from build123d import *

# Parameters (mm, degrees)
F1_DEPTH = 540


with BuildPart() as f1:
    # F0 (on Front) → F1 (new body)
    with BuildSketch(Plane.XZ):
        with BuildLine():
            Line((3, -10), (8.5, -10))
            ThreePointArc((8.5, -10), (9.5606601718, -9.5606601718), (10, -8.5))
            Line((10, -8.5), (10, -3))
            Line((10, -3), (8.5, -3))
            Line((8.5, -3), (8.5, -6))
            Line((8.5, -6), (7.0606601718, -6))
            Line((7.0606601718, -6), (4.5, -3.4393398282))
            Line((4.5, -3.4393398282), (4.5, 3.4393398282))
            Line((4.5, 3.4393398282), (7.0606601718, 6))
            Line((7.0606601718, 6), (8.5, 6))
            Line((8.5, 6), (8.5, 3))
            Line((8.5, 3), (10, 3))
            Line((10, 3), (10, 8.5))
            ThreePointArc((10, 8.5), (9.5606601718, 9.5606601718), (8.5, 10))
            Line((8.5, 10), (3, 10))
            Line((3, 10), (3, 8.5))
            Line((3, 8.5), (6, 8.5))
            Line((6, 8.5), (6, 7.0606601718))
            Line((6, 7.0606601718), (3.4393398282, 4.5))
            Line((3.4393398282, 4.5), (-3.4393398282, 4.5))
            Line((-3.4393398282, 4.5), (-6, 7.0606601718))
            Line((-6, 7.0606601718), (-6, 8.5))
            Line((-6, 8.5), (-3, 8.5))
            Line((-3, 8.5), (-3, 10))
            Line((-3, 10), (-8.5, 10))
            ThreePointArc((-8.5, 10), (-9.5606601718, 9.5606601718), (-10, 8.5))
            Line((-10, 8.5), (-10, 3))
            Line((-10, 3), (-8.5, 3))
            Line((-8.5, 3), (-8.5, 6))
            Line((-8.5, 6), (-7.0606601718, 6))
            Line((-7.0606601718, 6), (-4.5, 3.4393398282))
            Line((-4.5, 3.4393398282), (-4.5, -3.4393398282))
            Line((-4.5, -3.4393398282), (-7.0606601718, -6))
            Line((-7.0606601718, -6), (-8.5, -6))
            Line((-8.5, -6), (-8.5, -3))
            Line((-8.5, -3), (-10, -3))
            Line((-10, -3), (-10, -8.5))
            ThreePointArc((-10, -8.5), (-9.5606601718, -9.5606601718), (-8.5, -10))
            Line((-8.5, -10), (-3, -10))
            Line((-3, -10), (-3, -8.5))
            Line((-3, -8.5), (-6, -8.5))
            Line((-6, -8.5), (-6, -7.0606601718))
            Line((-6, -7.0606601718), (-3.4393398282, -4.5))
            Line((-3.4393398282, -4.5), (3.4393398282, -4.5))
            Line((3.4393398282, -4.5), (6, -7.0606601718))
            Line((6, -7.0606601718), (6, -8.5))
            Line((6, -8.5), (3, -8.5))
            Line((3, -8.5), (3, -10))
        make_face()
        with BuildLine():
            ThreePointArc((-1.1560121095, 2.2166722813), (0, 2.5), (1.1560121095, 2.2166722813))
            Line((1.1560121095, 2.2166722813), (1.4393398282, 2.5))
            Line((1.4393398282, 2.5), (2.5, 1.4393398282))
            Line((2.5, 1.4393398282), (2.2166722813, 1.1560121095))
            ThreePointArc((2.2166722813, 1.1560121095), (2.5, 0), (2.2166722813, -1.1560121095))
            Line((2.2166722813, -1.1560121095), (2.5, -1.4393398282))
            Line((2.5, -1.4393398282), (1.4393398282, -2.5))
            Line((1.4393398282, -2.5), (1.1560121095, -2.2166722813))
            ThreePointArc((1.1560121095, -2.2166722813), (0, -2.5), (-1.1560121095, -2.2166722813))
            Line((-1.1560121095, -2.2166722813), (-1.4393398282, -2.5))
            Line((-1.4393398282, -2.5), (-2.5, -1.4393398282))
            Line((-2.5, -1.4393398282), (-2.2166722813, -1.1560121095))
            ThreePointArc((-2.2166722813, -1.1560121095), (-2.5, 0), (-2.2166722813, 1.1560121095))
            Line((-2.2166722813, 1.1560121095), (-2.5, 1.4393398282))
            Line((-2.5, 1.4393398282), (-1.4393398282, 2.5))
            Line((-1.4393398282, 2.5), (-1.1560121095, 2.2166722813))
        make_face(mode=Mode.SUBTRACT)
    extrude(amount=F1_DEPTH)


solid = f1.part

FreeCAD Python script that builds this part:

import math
import FreeCAD as App
import Part
import Sketcher

V = App.Vector

doc = App.newDocument("Part")
body = doc.addObject("PartDesign::Body", "Body")

sketch1 = doc.addObject("Sketcher::SketchObject", "Sketch")
body.addObject(sketch1)
sketch1.AttachmentSupport = (doc.XZ_Plane, [""])
sketch1.MapMode = "FlatFace"
sketch1.addGeometry(Part.LineSegment(V(3, -10, 0), V(8.5, -10, 0)), False)
sketch1.addGeometry(Part.ArcOfCircle(Part.Circle(V(8.5, -8.5, 0), V(0, 0, 1), 1.5), math.radians(-90), math.radians(0)), False)
sketch1.addGeometry(Part.LineSegment(V(10, -8.5, 0), V(10, -3, 0)), False)
sketch1.addGeometry(Part.LineSegment(V(10, -3, 0), V(8.5, -3, 0)), False)
sketch1.addGeometry(Part.LineSegment(V(8.5, -3, 0), V(8.5, -6, 0)), False)
sketch1.addGeometry(Part.LineSegment(V(8.5, -6, 0), V(7.06, -6, 0)), False)
sketch1.addGeometry(Part.LineSegment(V(7.06, -6, 0), V(4.5, -3.44, 0)), False)
sketch1.addGeometry(Part.LineSegment(V(4.5, -3.44, 0), V(4.5, 3.44, 0)), False)
sketch1.addGeometry(Part.LineSegment(V(4.5, 3.44, 0), V(7.06, 6, 0)), False)
sketch1.addGeometry(Part.LineSegment(V(7.06, 6, 0), V(8.5, 6, 0)), False)
sketch1.addGeometry(Part.LineSegment(V(8.5, 6, 0), V(8.5, 3, 0)), False)
sketch1.addGeometry(Part.LineSegment(V(8.5, 3, 0), V(10, 3, 0)), False)
sketch1.addGeometry(Part.LineSegment(V(10, 3, 0), V(10, 8.5, 0)), False)
sketch1.addGeometry(Part.ArcOfCircle(Part.Circle(V(8.5, 8.5, 0), V(0, 0, 1), 1.5), math.radians(0), math.radians(90)), False)
sketch1.addGeometry(Part.LineSegment(V(8.5, 10, 0), V(3, 10, 0)), False)
sketch1.addGeometry(Part.LineSegment(V(3, 10, 0), V(3, 8.5, 0)), False)
sketch1.addGeometry(Part.LineSegment(V(3, 8.5, 0), V(6, 8.5, 0)), False)
sketch1.addGeometry(Part.LineSegment(V(6, 8.5, 0), V(6, 7.06, 0)), False)
sketch1.addGeometry(Part.LineSegment(V(6, 7.06, 0), V(3.44, 4.5, 0)), False)
sketch1.addGeometry(Part.LineSegment(V(3.44, 4.5, 0), V(-3.44, 4.5, 0)), False)
sketch1.addGeometry(Part.LineSegment(V(-3.44, 4.5, 0), V(-6, 7.06, 0)), False)
sketch1.addGeometry(Part.LineSegment(V(-6, 7.06, 0), V(-6, 8.5, 0)), False)
sketch1.addGeometry(Part.LineSegment(V(-6, 8.5, 0), V(-3, 8.5, 0)), False)
sketch1.addGeometry(Part.LineSegment(V(-3, 8.5, 0), V(-3, 10, 0)), False)
sketch1.addGeometry(Part.LineSegment(V(-3, 10, 0), V(-8.5, 10, 0)), False)
sketch1.addGeometry(Part.ArcOfCircle(Part.Circle(V(-8.5, 8.5, 0), V(0, 0, 1), 1.5), math.radians(90), math.radians(180)), False)
sketch1.addGeometry(Part.LineSegment(V(-10, 8.5, 0), V(-10, 3, 0)), False)
sketch1.addGeometry(Part.LineSegment(V(-10, 3, 0), V(-8.5, 3, 0)), False)
sketch1.addGeometry(Part.LineSegment(V(-8.5, 3, 0), V(-8.5, 6, 0)), False)
sketch1.addGeometry(Part.LineSegment(V(-8.5, 6, 0), V(-7.06, 6, 0)), False)
sketch1.addGeometry(Part.LineSegment(V(-7.06, 6, 0), V(-4.5, 3.44, 0)), False)
sketch1.addGeometry(Part.LineSegment(V(-4.5, 3.44, 0), V(-4.5, -3.44, 0)), False)
sketch1.addGeometry(Part.LineSegment(V(-4.5, -3.44, 0), V(-7.06, -6, 0)), False)
sketch1.addGeometry(Part.LineSegment(V(-7.06, -6, 0), V(-8.5, -6, 0)), False)
sketch1.addGeometry(Part.LineSegment(V(-8.5, -6, 0), V(-8.5, -3, 0)), False)
sketch1.addGeometry(Part.LineSegment(V(-8.5, -3, 0), V(-10, -3, 0)), False)
sketch1.addGeometry(Part.LineSegment(V(-10, -3, 0), V(-10, -8.5, 0)), False)
sketch1.addGeometry(Part.ArcOfCircle(Part.Circle(V(-8.5, -8.5, 0), V(0, 0, 1), 1.5), math.radians(180), math.radians(270)), False)
sketch1.addGeometry(Part.LineSegment(V(-8.5, -10, 0), V(-3, -10, 0)), False)
sketch1.addGeometry(Part.LineSegment(V(-3, -10, 0), V(-3, -8.5, 0)), False)
sketch1.addGeometry(Part.LineSegment(V(-3, -8.5, 0), V(-6, -8.5, 0)), False)
sketch1.addGeometry(Part.LineSegment(V(-6, -8.5, 0), V(-6, -7.06, 0)), False)
sketch1.addGeometry(Part.LineSegment(V(-6, -7.06, 0), V(-3.44, -4.5, 0)), False)
sketch1.addGeometry(Part.LineSegment(V(-3.44, -4.5, 0), V(3.44, -4.5, 0)), False)
sketch1.addGeometry(Part.LineSegment(V(3.44, -4.5, 0), V(6, -7.06, 0)), False)
sketch1.addGeometry(Part.LineSegment(V(6, -7.06, 0), V(6, -8.5, 0)), False)
sketch1.addGeometry(Part.LineSegment(V(6, -8.5, 0), V(3, -8.5, 0)), False)
sketch1.addGeometry(Part.LineSegment(V(3, -8.5, 0), V(3, -10, 0)), False)
sketch1.addGeometry(Part.LineSegment(V(-1.44, 2.5, 0), V(-1.16, 2.22, 0)), False)
sketch1.addGeometry(Part.ArcOfCircle(Part.Circle(V(0, 0, 0), V(0, 0, 1), 2.5), math.radians(62), math.radians(118)), False)
sketch1.addGeometry(Part.LineSegment(V(1.16, 2.22, 0), V(1.44, 2.5, 0)), False)
sketch1.addGeometry(Part.LineSegment(V(1.44, 2.5, 0), V(2.5, 1.44, 0)), False)
sketch1.addGeometry(Part.LineSegment(V(2.5, 1.44, 0), V(2.22, 1.16, 0)), False)
sketch1.addGeometry(Part.ArcOfCircle(Part.Circle(V(0, 0, 0), V(0, 0, 1), 2.5), math.radians(-28), math.radians(28)), False)
sketch1.addGeometry(Part.LineSegment(V(2.22, -1.16, 0), V(2.5, -1.44, 0)), False)
sketch1.addGeometry(Part.LineSegment(V(2.5, -1.44, 0), V(1.44, -2.5, 0)), False)
sketch1.addGeometry(Part.LineSegment(V(1.44, -2.5, 0), V(1.16, -2.22, 0)), False)
sketch1.addGeometry(Part.ArcOfCircle(Part.Circle(V(0, 0, 0), V(0, 0, 1), 2.5), math.radians(-118), math.radians(-62)), False)
sketch1.addGeometry(Part.LineSegment(V(-1.16, -2.22, 0), V(-1.44, -2.5, 0)), False)
sketch1.addGeometry(Part.LineSegment(V(-1.44, -2.5, 0), V(-2.5, -1.44, 0)), False)
sketch1.addGeometry(Part.LineSegment(V(-2.5, -1.44, 0), V(-2.22, -1.16, 0)), False)
sketch1.addGeometry(Part.ArcOfCircle(Part.Circle(V(0, 0, 0), V(0, 0, 1), 2.5), math.radians(152), math.radians(208)), False)
sketch1.addGeometry(Part.LineSegment(V(-2.22, 1.16, 0), V(-2.5, 1.44, 0)), False)
sketch1.addGeometry(Part.LineSegment(V(-2.5, 1.44, 0), V(-1.44, 2.5, 0)), False)
sketch1.addConstraint(Sketcher.Constraint("Tangent", 0, 2, 1, 1))
sketch1.addConstraint(Sketcher.Constraint("Tangent", 1, 2, 2, 1))
sketch1.addConstraint(Sketcher.Constraint("Coincident", 2, 2, 3, 1))
sketch1.addConstraint(Sketcher.Constraint("Coincident", 3, 2, 4, 1))
sketch1.addConstraint(Sketcher.Constraint("Coincident", 4, 2, 5, 1))
sketch1.addConstraint(Sketcher.Constraint("Coincident", 5, 2, 6, 1))
sketch1.addConstraint(Sketcher.Constraint("Coincident", 6, 2, 7, 1))
sketch1.addConstraint(Sketcher.Constraint("Coincident", 7, 2, 8, 1))
sketch1.addConstraint(Sketcher.Constraint("Coincident", 8, 2, 9, 1))
sketch1.addConstraint(Sketcher.Constraint("Coincident", 9, 2, 10, 1))
sketch1.addConstraint(Sketcher.Constraint("Coincident", 10, 2, 11, 1))
sketch1.addConstraint(Sketcher.Constraint("Coincident", 11, 2, 12, 1))
sketch1.addConstraint(Sketcher.Constraint("Tangent", 12, 2, 13, 1))
sketch1.addConstraint(Sketcher.Constraint("Tangent", 13, 2, 14, 1))
sketch1.addConstraint(Sketcher.Constraint("Coincident", 14, 2, 15, 1))
sketch1.addConstraint(Sketcher.Constraint("Coincident", 15, 2, 16, 1))
sketch1.addConstraint(Sketcher.Constraint("Coincident", 16, 2, 17, 1))
sketch1.addConstraint(Sketcher.Constraint("Coincident", 17, 2, 18, 1))
sketch1.addConstraint(Sketcher.Constraint("Coincident", 18, 2, 19, 1))
sketch1.addConstraint(Sketcher.Constraint("Coincident", 19, 2, 20, 1))
sketch1.addConstraint(Sketcher.Constraint("Coincident", 20, 2, 21, 1))
sketch1.addConstraint(Sketcher.Constraint("Coincident", 21, 2, 22, 1))
sketch1.addConstraint(Sketcher.Constraint("Coincident", 22, 2, 23, 1))
sketch1.addConstraint(Sketcher.Constraint("Coincident", 23, 2, 24, 1))
sketch1.addConstraint(Sketcher.Constraint("Tangent", 24, 2, 25, 1))
sketch1.addConstraint(Sketcher.Constraint("Tangent", 25, 2, 26, 1))
sketch1.addConstraint(Sketcher.Constraint("Coincident", 26, 2, 27, 1))
sketch1.addConstraint(Sketcher.Constraint("Coincident", 27, 2, 28, 1))
sketch1.addConstraint(Sketcher.Constraint("Coincident", 28, 2, 29, 1))
sketch1.addConstraint(Sketcher.Constraint("Coincident", 29, 2, 30, 1))
sketch1.addConstraint(Sketcher.Constraint("Coincident", 30, 2, 31, 1))
sketch1.addConstraint(Sketcher.Constraint("Coincident", 31, 2, 32, 1))
sketch1.addConstraint(Sketcher.Constraint("Coincident", 32, 2, 33, 1))
sketch1.addConstraint(Sketcher.Constraint("Coincident", 33, 2, 34, 1))
sketch1.addConstraint(Sketcher.Constraint("Coincident", 34, 2, 35, 1))
sketch1.addConstraint(Sketcher.Constraint("Coincident", 35, 2, 36, 1))
sketch1.addConstraint(Sketcher.Constraint("Tangent", 36, 2, 37, 1))
sketch1.addConstraint(Sketcher.Constraint("Tangent", 37, 2, 38, 1))
sketch1.addConstraint(Sketcher.Constraint("Coincident", 38, 2, 39, 1))
sketch1.addConstraint(Sketcher.Constraint("Coincident", 39, 2, 40, 1))
sketch1.addConstraint(Sketcher.Constraint("Coincident", 40, 2, 41, 1))
sketch1.addConstraint(Sketcher.Constraint("Coincident", 41, 2, 42, 1))
sketch1.addConstraint(Sketcher.Constraint("Coincident", 42, 2, 43, 1))
sketch1.addConstraint(Sketcher.Constraint("Coincident", 43, 2, 44, 1))
sketch1.addConstraint(Sketcher.Constraint("Coincident", 44, 2, 45, 1))
sketch1.addConstraint(Sketcher.Constraint("Coincident", 45, 2, 46, 1))
sketch1.addConstraint(Sketcher.Constraint("Coincident", 46, 2, 47, 1))
sketch1.addConstraint(Sketcher.Constraint("Coincident", 47, 2, 0, 1))
sketch1.addConstraint(Sketcher.Constraint("Coincident", 48, 2, 49, 2))
sketch1.addConstraint(Sketcher.Constraint("Coincident", 49, 1, 50, 1))
sketch1.addConstraint(Sketcher.Constraint("Coincident", 50, 2, 51, 1))
sketch1.addConstraint(Sketcher.Constraint("Coincident", 51, 2, 52, 1))
sketch1.addConstraint(Sketcher.Constraint("Coincident", 52, 2, 53, 2))
sketch1.addConstraint(Sketcher.Constraint("Coincident", 53, 1, 54, 1))
sketch1.addConstraint(Sketcher.Constraint("Coincident", 54, 2, 55, 1))
sketch1.addConstraint(Sketcher.Constraint("Coincident", 55, 2, 56, 1))
sketch1.addConstraint(Sketcher.Constraint("Coincident", 56, 2, 57, 2))
sketch1.addConstraint(Sketcher.Constraint("Coincident", 57, 1, 58, 1))
sketch1.addConstraint(Sketcher.Constraint("Coincident", 58, 2, 59, 1))
sketch1.addConstraint(Sketcher.Constraint("Coincident", 59, 2, 60, 1))
sketch1.addConstraint(Sketcher.Constraint("Coincident", 60, 2, 61, 2))
sketch1.addConstraint(Sketcher.Constraint("Coincident", 61, 1, 62, 1))
sketch1.addConstraint(Sketcher.Constraint("Coincident", 62, 2, 63, 1))
sketch1.addConstraint(Sketcher.Constraint("Coincident", 63, 2, 48, 1))
sketch1.addConstraint(Sketcher.Constraint("Horizontal", 0))
sketch1.addConstraint(Sketcher.Constraint("Vertical", 2))
sketch1.addConstraint(Sketcher.Constraint("Horizontal", 3))
sketch1.addConstraint(Sketcher.Constraint("Vertical", 4))
sketch1.addConstraint(Sketcher.Constraint("Horizontal", 5))
sketch1.addConstraint(Sketcher.Constraint("Vertical", 7))
sketch1.addConstraint(Sketcher.Constraint("Horizontal", 9))
sketch1.addConstraint(Sketcher.Constraint("Vertical", 10))
sketch1.addConstraint(Sketcher.Constraint("Horizontal", 11))
sketch1.addConstraint(Sketcher.Constraint("Vertical", 12))
sketch1.addConstraint(Sketcher.Constraint("Horizontal", 14))
sketch1.addConstraint(Sketcher.Constraint("Vertical", 15))
sketch1.addConstraint(Sketcher.Constraint("Horizontal", 16))
sketch1.addConstraint(Sketcher.Constraint("Vertical", 17))
sketch1.addConstraint(Sketcher.Constraint("Horizontal", 19))
sketch1.addConstraint(Sketcher.Constraint("Vertical", 21))
sketch1.addConstraint(Sketcher.Constraint("Horizontal", 22))
sketch1.addConstraint(Sketcher.Constraint("Vertical", 23))
sketch1.addConstraint(Sketcher.Constraint("Horizontal", 24))
sketch1.addConstraint(Sketcher.Constraint("Vertical", 26))
sketch1.addConstraint(Sketcher.Constraint("Horizontal", 27))
sketch1.addConstraint(Sketcher.Constraint("Vertical", 28))
sketch1.addConstraint(Sketcher.Constraint("Horizontal", 29))
sketch1.addConstraint(Sketcher.Constraint("Vertical", 31))
sketch1.addConstraint(Sketcher.Constraint("Horizontal", 33))
sketch1.addConstraint(Sketcher.Constraint("Vertical", 34))
sketch1.addConstraint(Sketcher.Constraint("Horizontal", 35))
sketch1.addConstraint(Sketcher.Constraint("Vertical", 36))
sketch1.addConstraint(Sketcher.Constraint("Horizontal", 38))
sketch1.addConstraint(Sketcher.Constraint("Vertical", 39))
sketch1.addConstraint(Sketcher.Constraint("Horizontal", 40))
sketch1.addConstraint(Sketcher.Constraint("Vertical", 41))
sketch1.addConstraint(Sketcher.Constraint("Horizontal", 43))
sketch1.addConstraint(Sketcher.Constraint("Vertical", 45))
sketch1.addConstraint(Sketcher.Constraint("Horizontal", 46))
sketch1.addConstraint(Sketcher.Constraint("Vertical", 47))
sketch1.addConstraint(Sketcher.Constraint("Coincident", 49, 3, -1, 1))
sketch1.addConstraint(Sketcher.Constraint("Coincident", 53, 3, -1, 1))
sketch1.addConstraint(Sketcher.Constraint("Coincident", 57, 3, -1, 1))
sketch1.addConstraint(Sketcher.Constraint("Coincident", 61, 3, -1, 1))
sketch1.addConstraint(Sketcher.Constraint("Equal", 1, 13))
sketch1.addConstraint(Sketcher.Constraint("Equal", 13, 25))
sketch1.addConstraint(Sketcher.Constraint("Equal", 25, 37))
sketch1.addConstraint(Sketcher.Constraint("Equal", 49, 53))
sketch1.addConstraint(Sketcher.Constraint("Equal", 53, 57))
sketch1.addConstraint(Sketcher.Constraint("Equal", 57, 61))
sketch1.addConstraint(Sketcher.Constraint("Symmetric", 1, 3, 25, 3, -1, 1))
sketch1.addConstraint(Sketcher.Constraint("Symmetric", 13, 3, 37, 3, -1, 1))
sketch1.addConstraint(Sketcher.Constraint("Symmetric", 3, 2, 27, 2, -1, 1))
sketch1.addConstraint(Sketcher.Constraint("Symmetric", 5, 2, 29, 2, -1, 1))
sketch1.addConstraint(Sketcher.Constraint("Symmetric", 6, 2, 30, 2, -1, 1))
sketch1.addConstraint(Sketcher.Constraint("Symmetric", 8, 2, 32, 2, -1, 1))
sketch1.addConstraint(Sketcher.Constraint("Symmetric", 10, 2, 34, 2, -1, 1))
sketch1.addConstraint(Sketcher.Constraint("Symmetric", 15, 2, 39, 2, -1, 1))
sketch1.addConstraint(Sketcher.Constraint("Symmetric", 17, 2, 41, 2, -1, 1))
sketch1.addConstraint(Sketcher.Constraint("Symmetric", 18, 2, 42, 2, -1, 1))
sketch1.addConstraint(Sketcher.Constraint("Symmetric", 20, 2, 44, 2, -1, 1))
sketch1.addConstraint(Sketcher.Constraint("Symmetric", 22, 2, 46, 2, -1, 1))
sketch1.addConstraint(Sketcher.Constraint("Symmetric", 50, 2, 58, 2, -1, 1))
sketch1.addConstraint(Sketcher.Constraint("Symmetric", 51, 2, 59, 2, -1, 1))
sketch1.addConstraint(Sketcher.Constraint("Symmetric", 54, 2, 62, 2, -1, 1))
sketch1.addConstraint(Sketcher.Constraint("Symmetric", 55, 2, 63, 2, -1, 1))
sketch1.addConstraint(Sketcher.Constraint("Symmetric", 13, 3, 25, 3, -2))
sketch1.addConstraint(Sketcher.Constraint("Symmetric", 17, 2, 20, 2, -2))
sketch1.addConstraint(Sketcher.Constraint("Symmetric", 15, 2, 22, 2, -2))
sketch1.addConstraint(Sketcher.Constraint("Symmetric", 10, 2, 27, 2, -2))
sketch1.addConstraint(Sketcher.Constraint("Symmetric", 8, 2, 29, 2, -2))
sketch1.addConstraint(Sketcher.Constraint("Symmetric", 55, 2, 58, 2, -2))
sketch1.addConstraint(Sketcher.Constraint("Symmetric", 54, 2, 59, 2, -2))
sketch1.addConstraint(Sketcher.Constraint("Perpendicular", 6, 8))
sketch1.addConstraint(Sketcher.Constraint("Parallel", 8, 18))
sketch1.addConstraint(Sketcher.Constraint("Perpendicular", 18, 20))
sketch1.addConstraint(Sketcher.Constraint("Perpendicular", 30, 32))
sketch1.addConstraint(Sketcher.Constraint("Perpendicular", 42, 44))
sketch1.addConstraint(Sketcher.Constraint("Parallel", 44, 48))
sketch1.addConstraint(Sketcher.Constraint("Perpendicular", 48, 50))
sketch1.addConstraint(Sketcher.Constraint("Perpendicular", 50, 51))
sketch1.addConstraint(Sketcher.Constraint("Perpendicular", 51, 52))
sketch1.addConstraint(Sketcher.Constraint("Perpendicular", 52, 54))
sketch1.addConstraint(Sketcher.Constraint("Perpendicular", 54, 55))
sketch1.addConstraint(Sketcher.Constraint("Perpendicular", 55, 56))
sketch1.addConstraint(Sketcher.Constraint("Perpendicular", 56, 58))
sketch1.addConstraint(Sketcher.Constraint("Perpendicular", 59, 60))
sketch1.addConstraint(Sketcher.Constraint("Perpendicular", 60, 62))
sketch1.addConstraint(Sketcher.Constraint("Horizontal", 12, 2, 15, 2))
sketch1.addConstraint(Sketcher.Constraint("Vertical", 0, 2, 3, 2))
sketch1.addConstraint(Sketcher.Constraint("Equal", 38, 2))
sketch1.addConstraint(Sketcher.Constraint("Equal", 46, 4))
sketch1.addConstraint(Sketcher.Constraint("Equal", 43, 7))
sketch1.addConstraint(Sketcher.Constraint("Equal", 33, 17))
sketch1.addConstraint(Sketcher.Constraint("Equal", 8, 18))
sketch1.addConstraint(Sketcher.Constraint("Equal", 50, 52))
sketch1.addConstraint(Sketcher.Constraint("Radius", 1, 1.5))
sketch1.addConstraint(Sketcher.Constraint("Radius", 49, 2.5))
sketch1.addConstraint(Sketcher.Constraint("DistanceX", 16, 1, 16, 2, 3.0))
sketch1.addConstraint(Sketcher.Constraint("DistanceX", 0, 1, 0, 2, 5.5))
sketch1.addConstraint(Sketcher.Constraint("DistanceY", 0, 2, -1, 1, 10.0))
sketch1.addConstraint(Sketcher.Constraint("Distance", 51, 1.5))
sketch1.addConstraint(Sketcher.Constraint("DistanceX", -1, 1, 6, 2, 4.5))
sketch1.addConstraint(Sketcher.Constraint("DistanceY", -1, 1, 50, 2, 2.5))
sketch1.addConstraint(Sketcher.Constraint("DistanceX", 5, 2, 5, 1, 1.43934))
pad1 = doc.addObject("PartDesign::Pad", "Pad")
body.addObject(pad1)
pad1.Profile = sketch1
pad1.Length = 540

doc.recompute()
